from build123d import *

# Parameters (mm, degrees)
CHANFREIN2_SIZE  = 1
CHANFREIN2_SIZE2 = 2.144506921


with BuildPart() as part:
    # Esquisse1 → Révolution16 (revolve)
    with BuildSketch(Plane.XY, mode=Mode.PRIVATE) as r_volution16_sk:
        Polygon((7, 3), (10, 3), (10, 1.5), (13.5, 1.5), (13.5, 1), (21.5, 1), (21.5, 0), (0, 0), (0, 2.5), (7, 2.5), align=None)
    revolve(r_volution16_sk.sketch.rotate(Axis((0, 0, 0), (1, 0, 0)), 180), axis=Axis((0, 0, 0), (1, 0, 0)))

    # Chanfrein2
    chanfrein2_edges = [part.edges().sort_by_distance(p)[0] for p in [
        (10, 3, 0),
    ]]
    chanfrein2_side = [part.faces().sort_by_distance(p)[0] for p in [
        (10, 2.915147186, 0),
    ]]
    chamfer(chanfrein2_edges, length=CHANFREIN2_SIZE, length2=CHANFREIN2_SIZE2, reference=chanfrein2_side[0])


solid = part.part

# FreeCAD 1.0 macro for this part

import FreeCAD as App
import Part
import Sketcher
Q = App.Units.Quantity


def edges_at(feature, points):
    """Names of the edges that pass closest to the given points."""
    edges = feature.Shape.Edges
    near = lambda p: min(range(len(edges)), key=lambda i: edges[i].distToShape(Part.Vertex(*p))[0])
    return sorted({f"Edge{near(p) + 1}" for p in points})

doc = App.newDocument("Part")
body = doc.addObject("PartDesign::Body", "Body")

# Sketch on XY plane
sketch1 = body.newObject("Sketcher::SketchObject", "Sketch")
sketch1.AttachmentSupport = (doc.getObject("XY_Plane"), [""])
sketch1.MapMode = "FlatFace"
sketch1.addGeometry([
    Part.LineSegment(App.Vector(10, 3, 0), App.Vector(7, 3, 0)),  # 0
    Part.LineSegment(App.Vector(7, 3, 0), App.Vector(7, 2.5, 0)),  # 1
    Part.LineSegment(App.Vector(7, 2.5, 0), App.Vector(0, 2.5, 0)),  # 2
    Part.LineSegment(App.Vector(0, 2.5, 0), App.Vector(0, 0, 0)),  # 3
    Part.LineSegment(App.Vector(0, 0, 0), App.Vector(21.5, 0, 0)),  # 4
    Part.LineSegment(App.Vector(21.5, 0, 0), App.Vector(21.5, 1, 0)),  # 5
    Part.LineSegment(App.Vector(21.5, 1, 0), App.Vector(13.5, 1, 0)),  # 6
    Part.LineSegment(App.Vector(13.5, 1, 0), App.Vector(13.5, 1.5, 0)),  # 7
    Part.LineSegment(App.Vector(13.5, 1.5, 0), App.Vector(10, 1.5, 0)),  # 8
    Part.LineSegment(App.Vector(10, 1.5, 0), App.Vector(10, 3, 0)),  # 9
], False)
sketch1.addConstraint([
    Sketcher.Constraint("Coincident", 0, 2, 1, 1),
    Sketcher.Constraint("Coincident", 1, 2, 2, 1),
    Sketcher.Constraint("Coincident", 2, 2, 3, 1),
    Sketcher.Constraint("Coincident", 3, 2, 4, 1),
    Sketcher.Constraint("Coincident", 4, 2, 5, 1),
    Sketcher.Constraint("Coincident", 5, 2, 6, 1),
    Sketcher.Constraint("Coincident", 6, 2, 7, 1),
    Sketcher.Constraint("Coincident", 7, 2, 8, 1),
    Sketcher.Constraint("Coincident", 8, 2, 9, 1),
    Sketcher.Constraint("Coincident", 9, 2, 0, 1),
    Sketcher.Constraint("Horizontal", 0),
    Sketcher.Constraint("Vertical", 1),
    Sketcher.Constraint("Horizontal", 2),
    Sketcher.Constraint("Vertical", 3),
    Sketcher.Constraint("Horizontal", 4),
    Sketcher.Constraint("Vertical", 5),
    Sketcher.Constraint("Horizontal", 6),
    Sketcher.Constraint("Vertical", 7),
    Sketcher.Constraint("Horizontal", 8),
    Sketcher.Constraint("Vertical", 9),
    Sketcher.Constraint("Coincident", 3, 2, -1, 1),
    Sketcher.Constraint("Equal", 1, 7),
    Sketcher.Constraint("DistanceX", 0, 2, 0, 1, Q("3 mm")),
    Sketcher.Constraint("DistanceX", 2, 2, 2, 1, Q("7 mm")),
    Sketcher.Constraint("DistanceX", 6, 2, 6, 1, Q("8 mm")),
    Sketcher.Constraint("DistanceY", 5, 1, 5, 2, Q("1 mm")),
    Sketcher.Constraint("DistanceX", 4, 1, 4, 2, Q("21.5 mm")),
    Sketcher.Constraint("DistanceY", 1, 2, 1, 1, Q("0.5 mm")),
    Sketcher.Constraint("DistanceY", 3, 2, 3, 1, Q("2.5 mm")),
])
revolution = body.newObject("PartDesign::Revolution", "Revolution")
revolution.Profile = sketch1
revolution.ReferenceAxis = (sketch1, ["H_Axis"])
revolution.Angle = 360
doc.recompute()

chamfer = body.newObject("PartDesign::Chamfer", "Chamfer")
chamfer.Base = (revolution, edges_at(revolution, [(10, 3, 0)]))
chamfer.ChamferType = "Two distances"
chamfer.Size = 1
chamfer.Size2 = 2.144507
chamfer.FlipDirection = True

doc.recompute()
